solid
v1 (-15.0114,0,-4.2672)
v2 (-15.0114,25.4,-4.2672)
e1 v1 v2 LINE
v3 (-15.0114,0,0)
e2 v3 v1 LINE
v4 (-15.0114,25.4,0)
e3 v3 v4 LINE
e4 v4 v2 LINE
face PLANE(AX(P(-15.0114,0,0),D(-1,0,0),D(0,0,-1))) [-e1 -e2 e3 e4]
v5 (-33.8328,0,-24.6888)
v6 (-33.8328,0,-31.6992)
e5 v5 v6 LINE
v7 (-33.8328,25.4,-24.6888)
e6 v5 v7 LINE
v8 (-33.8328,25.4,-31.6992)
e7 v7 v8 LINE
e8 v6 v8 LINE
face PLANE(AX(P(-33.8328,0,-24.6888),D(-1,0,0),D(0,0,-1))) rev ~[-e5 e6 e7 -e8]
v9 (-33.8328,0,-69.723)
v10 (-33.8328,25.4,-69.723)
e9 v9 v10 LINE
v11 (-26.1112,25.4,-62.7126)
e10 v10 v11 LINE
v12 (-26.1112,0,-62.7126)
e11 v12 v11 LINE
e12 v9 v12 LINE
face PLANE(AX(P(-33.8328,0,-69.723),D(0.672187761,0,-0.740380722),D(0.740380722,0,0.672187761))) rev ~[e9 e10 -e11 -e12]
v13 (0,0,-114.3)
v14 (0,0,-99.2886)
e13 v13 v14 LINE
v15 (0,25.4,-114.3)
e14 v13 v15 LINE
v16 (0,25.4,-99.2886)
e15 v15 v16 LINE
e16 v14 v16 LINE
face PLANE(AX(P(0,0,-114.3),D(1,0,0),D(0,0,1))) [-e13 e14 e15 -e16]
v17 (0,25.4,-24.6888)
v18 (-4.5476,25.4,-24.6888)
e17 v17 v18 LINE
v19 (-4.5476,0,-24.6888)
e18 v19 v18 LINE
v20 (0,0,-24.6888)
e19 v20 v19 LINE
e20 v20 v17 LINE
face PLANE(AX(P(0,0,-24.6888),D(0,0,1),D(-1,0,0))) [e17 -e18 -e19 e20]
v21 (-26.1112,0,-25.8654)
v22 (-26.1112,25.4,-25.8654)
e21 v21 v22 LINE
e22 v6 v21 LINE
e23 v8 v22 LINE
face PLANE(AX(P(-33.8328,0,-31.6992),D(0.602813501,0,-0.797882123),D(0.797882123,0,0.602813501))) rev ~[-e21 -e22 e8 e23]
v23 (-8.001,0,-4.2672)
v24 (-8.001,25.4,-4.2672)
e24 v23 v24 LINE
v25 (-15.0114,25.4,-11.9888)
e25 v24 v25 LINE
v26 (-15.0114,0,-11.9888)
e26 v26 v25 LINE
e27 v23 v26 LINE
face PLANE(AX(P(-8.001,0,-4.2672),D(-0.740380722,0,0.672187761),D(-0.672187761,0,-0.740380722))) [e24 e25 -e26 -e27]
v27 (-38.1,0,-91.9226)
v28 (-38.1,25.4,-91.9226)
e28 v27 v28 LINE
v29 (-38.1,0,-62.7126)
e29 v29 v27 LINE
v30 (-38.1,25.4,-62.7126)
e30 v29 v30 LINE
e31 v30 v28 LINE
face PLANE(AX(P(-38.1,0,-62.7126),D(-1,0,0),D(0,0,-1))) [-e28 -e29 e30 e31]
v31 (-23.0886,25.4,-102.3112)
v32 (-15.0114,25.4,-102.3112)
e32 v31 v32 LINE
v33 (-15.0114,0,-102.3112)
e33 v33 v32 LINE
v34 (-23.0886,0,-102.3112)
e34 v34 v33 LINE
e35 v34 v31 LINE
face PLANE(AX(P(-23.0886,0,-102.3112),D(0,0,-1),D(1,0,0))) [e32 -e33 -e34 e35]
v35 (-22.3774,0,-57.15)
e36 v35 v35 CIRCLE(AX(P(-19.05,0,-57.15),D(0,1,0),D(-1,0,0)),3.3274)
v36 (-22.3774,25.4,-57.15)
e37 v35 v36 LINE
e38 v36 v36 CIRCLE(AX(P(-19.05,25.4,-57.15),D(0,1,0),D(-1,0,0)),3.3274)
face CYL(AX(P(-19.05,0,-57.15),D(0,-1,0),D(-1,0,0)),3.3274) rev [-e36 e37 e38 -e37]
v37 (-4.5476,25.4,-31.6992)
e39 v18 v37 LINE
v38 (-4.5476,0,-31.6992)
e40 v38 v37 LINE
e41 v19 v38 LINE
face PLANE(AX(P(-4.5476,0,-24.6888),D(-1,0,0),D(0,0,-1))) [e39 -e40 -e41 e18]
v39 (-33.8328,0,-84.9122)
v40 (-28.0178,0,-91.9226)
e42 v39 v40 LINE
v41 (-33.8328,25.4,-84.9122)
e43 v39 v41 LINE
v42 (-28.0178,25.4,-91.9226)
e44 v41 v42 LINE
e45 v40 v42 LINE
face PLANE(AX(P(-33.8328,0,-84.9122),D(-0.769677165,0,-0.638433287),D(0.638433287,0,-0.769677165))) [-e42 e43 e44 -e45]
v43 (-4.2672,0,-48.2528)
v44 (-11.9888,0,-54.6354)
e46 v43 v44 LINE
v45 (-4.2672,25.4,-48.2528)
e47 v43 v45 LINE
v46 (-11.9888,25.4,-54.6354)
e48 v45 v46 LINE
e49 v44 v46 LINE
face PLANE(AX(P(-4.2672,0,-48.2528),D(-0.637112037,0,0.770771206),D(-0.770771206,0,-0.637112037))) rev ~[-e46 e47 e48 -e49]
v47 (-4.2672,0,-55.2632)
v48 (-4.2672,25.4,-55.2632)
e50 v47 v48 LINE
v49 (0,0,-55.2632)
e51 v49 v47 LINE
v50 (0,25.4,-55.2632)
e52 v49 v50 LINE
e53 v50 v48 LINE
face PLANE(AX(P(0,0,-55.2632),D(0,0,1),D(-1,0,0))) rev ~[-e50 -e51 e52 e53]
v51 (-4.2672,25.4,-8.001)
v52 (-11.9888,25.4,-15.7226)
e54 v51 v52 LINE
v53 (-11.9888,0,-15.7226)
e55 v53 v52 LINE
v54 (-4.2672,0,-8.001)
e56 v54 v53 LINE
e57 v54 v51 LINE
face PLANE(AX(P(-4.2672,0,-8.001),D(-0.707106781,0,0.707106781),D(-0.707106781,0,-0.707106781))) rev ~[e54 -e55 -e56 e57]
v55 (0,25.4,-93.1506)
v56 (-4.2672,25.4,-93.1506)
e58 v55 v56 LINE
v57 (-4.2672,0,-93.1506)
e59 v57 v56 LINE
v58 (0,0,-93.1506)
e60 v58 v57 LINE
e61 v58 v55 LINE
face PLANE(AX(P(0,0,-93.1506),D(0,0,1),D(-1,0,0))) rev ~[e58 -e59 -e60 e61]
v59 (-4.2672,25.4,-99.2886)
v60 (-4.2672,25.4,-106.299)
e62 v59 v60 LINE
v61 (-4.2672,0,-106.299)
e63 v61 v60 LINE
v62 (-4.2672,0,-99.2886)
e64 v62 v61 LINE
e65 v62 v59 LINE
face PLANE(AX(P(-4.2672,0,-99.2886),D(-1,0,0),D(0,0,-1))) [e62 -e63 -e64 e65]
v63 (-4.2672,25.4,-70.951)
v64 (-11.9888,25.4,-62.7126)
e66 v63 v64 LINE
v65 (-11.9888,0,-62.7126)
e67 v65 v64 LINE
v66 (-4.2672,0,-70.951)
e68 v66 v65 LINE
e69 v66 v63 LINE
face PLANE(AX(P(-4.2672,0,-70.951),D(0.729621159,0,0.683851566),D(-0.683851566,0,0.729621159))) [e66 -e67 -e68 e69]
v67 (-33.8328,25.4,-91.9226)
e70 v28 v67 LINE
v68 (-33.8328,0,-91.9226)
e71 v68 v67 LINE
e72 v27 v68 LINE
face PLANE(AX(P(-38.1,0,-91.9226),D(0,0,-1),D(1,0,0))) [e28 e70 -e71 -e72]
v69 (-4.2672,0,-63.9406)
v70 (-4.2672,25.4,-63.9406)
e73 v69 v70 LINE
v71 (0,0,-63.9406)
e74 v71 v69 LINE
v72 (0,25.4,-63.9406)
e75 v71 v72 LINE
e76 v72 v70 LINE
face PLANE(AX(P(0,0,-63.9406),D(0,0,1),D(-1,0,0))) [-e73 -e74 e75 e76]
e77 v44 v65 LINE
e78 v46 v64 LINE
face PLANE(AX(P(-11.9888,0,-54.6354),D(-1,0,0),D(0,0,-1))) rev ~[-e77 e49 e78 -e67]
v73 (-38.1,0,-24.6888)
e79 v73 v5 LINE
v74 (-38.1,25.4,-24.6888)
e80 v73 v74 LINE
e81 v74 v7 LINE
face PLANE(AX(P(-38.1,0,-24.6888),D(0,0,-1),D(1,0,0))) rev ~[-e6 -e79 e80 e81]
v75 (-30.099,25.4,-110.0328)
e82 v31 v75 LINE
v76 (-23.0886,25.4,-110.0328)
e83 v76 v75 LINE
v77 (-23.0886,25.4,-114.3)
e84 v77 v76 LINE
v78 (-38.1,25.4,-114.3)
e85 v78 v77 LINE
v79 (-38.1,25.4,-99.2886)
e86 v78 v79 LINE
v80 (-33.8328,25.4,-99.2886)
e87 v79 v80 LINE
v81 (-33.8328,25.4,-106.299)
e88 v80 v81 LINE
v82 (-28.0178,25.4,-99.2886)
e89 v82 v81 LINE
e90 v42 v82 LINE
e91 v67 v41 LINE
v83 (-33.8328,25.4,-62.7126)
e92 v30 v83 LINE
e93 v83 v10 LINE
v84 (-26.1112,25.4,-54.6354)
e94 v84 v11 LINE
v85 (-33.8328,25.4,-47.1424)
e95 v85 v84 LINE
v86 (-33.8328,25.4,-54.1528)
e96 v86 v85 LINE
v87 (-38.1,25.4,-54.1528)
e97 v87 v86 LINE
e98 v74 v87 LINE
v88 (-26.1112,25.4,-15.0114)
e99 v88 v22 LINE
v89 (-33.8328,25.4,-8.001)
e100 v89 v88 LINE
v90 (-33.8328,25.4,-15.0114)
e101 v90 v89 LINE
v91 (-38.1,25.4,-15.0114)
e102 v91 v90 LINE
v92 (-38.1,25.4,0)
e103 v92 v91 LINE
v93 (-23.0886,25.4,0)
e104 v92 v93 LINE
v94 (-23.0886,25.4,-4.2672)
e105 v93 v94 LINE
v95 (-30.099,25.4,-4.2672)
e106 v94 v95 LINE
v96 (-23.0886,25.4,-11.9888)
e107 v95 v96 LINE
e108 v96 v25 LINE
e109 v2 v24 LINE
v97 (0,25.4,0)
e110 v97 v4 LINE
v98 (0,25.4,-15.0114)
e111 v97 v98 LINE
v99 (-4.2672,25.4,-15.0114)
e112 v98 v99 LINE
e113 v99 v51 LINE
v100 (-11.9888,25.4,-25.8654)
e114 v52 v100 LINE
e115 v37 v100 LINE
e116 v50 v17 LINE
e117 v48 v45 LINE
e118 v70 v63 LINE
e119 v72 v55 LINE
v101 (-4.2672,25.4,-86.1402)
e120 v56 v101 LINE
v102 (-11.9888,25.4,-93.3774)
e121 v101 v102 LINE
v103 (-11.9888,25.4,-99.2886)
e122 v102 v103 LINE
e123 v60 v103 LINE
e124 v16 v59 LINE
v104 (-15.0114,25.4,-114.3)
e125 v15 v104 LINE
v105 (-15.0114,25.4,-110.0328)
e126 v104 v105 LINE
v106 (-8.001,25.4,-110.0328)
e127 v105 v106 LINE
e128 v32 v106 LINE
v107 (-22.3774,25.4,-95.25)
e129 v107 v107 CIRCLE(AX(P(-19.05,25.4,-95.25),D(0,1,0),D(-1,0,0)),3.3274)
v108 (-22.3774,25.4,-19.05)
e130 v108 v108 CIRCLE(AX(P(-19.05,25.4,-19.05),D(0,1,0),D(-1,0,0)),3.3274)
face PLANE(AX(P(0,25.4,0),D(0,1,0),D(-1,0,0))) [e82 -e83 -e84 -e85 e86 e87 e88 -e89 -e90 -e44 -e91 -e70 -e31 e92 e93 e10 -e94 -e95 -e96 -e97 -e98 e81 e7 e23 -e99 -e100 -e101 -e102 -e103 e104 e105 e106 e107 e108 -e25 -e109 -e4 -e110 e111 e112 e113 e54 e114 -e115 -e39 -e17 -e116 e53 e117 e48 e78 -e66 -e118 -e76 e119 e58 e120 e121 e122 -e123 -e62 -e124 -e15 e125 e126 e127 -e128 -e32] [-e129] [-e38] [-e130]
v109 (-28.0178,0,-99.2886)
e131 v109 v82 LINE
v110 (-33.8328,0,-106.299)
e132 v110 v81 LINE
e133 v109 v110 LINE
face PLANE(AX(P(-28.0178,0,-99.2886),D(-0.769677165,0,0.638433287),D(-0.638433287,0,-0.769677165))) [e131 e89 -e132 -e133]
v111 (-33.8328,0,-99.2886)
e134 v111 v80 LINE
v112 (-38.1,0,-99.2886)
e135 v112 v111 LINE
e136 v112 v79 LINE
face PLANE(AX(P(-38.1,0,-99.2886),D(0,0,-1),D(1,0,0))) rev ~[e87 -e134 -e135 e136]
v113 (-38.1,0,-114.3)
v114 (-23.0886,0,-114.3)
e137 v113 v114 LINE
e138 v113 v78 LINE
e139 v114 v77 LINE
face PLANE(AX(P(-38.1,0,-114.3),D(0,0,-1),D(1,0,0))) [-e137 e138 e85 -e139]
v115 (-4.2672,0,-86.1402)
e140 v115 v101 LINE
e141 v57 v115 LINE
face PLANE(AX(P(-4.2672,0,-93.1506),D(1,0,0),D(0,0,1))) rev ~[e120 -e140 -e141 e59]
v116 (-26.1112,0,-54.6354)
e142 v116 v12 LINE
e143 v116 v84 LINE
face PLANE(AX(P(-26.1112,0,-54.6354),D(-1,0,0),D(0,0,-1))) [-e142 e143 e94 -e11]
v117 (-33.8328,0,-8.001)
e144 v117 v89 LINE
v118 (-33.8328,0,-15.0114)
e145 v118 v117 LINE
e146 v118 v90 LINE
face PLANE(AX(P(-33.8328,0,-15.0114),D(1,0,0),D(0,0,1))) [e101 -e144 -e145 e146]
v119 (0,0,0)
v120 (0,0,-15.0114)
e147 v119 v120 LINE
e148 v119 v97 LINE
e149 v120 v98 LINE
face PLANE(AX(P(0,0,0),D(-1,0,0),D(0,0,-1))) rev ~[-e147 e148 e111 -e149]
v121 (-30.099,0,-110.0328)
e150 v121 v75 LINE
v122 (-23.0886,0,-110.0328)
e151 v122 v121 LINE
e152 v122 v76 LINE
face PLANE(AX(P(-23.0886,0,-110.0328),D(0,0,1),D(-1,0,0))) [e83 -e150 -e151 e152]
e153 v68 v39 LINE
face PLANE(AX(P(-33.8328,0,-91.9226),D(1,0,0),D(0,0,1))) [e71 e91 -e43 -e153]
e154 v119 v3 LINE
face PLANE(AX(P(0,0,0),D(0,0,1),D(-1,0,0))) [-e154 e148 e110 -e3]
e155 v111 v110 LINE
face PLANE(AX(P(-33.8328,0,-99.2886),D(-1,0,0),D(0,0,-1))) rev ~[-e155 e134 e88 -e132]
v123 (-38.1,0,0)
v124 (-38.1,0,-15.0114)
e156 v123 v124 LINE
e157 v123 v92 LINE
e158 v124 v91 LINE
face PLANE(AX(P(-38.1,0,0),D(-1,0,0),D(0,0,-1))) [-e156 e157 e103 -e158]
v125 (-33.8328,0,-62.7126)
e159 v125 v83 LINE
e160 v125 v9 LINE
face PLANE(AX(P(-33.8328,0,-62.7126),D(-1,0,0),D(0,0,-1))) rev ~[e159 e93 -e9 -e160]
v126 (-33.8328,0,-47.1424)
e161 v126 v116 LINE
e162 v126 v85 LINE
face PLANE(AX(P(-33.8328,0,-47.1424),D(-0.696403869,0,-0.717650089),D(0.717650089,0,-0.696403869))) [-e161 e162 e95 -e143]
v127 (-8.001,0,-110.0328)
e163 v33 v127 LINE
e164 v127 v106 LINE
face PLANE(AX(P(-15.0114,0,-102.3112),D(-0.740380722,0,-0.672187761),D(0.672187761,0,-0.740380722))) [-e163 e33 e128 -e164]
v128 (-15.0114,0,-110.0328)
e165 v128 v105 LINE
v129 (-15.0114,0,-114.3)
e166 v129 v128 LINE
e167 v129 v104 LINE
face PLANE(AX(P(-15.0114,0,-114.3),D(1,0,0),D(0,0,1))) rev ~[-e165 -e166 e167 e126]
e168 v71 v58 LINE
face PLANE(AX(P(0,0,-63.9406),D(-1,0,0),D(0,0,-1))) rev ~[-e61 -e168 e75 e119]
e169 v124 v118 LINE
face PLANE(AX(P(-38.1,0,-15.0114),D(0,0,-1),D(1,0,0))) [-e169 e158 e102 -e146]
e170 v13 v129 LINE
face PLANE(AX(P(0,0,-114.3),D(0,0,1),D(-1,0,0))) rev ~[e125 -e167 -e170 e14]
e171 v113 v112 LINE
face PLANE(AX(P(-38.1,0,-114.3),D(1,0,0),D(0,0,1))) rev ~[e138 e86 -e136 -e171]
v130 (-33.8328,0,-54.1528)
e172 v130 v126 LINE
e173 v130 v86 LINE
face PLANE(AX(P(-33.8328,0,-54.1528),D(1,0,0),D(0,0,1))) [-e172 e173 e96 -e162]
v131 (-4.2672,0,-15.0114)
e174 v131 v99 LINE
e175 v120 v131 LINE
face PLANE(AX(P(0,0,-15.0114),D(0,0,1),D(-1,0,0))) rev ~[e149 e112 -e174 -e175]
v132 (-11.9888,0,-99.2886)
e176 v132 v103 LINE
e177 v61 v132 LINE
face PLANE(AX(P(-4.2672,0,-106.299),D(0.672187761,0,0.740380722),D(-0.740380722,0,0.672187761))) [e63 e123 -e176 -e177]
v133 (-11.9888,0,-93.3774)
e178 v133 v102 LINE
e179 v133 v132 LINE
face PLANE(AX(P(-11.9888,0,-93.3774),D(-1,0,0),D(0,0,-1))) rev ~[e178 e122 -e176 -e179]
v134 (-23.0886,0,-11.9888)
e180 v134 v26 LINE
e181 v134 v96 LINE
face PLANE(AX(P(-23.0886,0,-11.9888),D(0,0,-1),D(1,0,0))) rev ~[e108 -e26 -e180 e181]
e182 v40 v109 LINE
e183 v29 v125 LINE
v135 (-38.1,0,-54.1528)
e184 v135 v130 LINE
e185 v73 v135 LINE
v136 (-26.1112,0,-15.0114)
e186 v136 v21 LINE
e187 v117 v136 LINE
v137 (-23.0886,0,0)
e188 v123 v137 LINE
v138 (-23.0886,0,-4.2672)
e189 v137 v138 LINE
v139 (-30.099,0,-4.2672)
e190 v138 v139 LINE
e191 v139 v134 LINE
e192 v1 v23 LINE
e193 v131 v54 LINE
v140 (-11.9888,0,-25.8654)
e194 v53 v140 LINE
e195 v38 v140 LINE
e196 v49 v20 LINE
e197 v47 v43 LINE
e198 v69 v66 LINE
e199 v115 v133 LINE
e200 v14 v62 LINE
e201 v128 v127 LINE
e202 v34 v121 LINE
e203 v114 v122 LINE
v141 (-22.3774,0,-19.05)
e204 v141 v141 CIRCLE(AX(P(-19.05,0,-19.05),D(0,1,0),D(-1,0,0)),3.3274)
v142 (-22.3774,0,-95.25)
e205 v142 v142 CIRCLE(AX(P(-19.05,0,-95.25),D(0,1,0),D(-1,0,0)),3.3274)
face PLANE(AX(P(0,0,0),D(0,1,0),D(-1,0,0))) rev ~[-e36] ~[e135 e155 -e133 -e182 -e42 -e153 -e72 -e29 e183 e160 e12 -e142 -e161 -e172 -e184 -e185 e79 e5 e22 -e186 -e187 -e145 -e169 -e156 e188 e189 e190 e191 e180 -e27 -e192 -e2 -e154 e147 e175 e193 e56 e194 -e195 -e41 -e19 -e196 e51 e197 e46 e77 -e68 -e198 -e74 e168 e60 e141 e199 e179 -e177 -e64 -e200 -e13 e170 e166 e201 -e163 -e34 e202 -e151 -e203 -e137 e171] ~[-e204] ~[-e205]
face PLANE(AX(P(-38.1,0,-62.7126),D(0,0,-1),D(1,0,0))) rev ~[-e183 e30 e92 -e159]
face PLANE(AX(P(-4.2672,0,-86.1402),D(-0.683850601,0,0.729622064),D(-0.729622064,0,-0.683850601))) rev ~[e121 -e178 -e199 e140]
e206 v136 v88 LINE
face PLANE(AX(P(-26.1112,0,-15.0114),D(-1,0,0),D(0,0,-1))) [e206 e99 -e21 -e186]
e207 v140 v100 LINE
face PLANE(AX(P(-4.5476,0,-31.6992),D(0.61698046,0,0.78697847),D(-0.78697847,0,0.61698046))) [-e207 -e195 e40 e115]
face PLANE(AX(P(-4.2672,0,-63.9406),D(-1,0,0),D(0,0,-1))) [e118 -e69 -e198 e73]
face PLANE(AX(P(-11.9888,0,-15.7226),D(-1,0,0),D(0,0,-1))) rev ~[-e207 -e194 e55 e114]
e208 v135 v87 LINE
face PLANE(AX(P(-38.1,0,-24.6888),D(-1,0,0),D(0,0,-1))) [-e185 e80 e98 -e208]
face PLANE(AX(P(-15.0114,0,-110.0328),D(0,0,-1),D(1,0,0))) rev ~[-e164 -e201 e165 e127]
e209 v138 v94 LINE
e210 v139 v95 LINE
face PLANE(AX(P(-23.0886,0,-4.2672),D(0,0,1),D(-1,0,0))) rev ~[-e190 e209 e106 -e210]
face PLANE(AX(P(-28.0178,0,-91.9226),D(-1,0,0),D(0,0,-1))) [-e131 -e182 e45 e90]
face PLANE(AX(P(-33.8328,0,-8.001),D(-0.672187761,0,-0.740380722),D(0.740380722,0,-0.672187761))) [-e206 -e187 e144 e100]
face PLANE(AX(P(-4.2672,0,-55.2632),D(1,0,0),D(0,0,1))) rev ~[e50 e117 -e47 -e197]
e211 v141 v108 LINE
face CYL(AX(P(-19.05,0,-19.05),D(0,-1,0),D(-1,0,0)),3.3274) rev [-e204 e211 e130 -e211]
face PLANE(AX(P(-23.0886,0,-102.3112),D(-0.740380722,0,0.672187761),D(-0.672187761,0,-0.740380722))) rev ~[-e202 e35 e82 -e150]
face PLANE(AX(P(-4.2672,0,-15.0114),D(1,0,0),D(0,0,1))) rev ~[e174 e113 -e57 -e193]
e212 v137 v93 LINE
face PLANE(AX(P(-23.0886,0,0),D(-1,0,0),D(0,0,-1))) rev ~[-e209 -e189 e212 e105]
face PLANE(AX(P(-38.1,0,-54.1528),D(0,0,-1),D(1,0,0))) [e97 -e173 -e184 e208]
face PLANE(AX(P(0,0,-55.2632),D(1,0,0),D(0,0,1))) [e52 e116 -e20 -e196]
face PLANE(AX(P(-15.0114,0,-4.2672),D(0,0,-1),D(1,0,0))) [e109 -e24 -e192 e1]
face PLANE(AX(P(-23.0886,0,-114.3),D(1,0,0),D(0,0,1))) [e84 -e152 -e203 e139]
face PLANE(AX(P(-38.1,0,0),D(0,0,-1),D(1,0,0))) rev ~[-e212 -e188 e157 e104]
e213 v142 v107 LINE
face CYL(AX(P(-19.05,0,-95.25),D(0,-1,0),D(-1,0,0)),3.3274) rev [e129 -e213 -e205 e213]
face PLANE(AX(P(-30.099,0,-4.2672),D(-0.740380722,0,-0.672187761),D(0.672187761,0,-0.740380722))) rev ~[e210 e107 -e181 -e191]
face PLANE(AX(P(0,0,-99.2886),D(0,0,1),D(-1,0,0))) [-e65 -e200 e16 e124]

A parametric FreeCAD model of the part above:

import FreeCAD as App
import Part
import Sketcher
from FreeCAD import Vector
Q = App.Units.Quantity

doc = App.newDocument("Part")
body = doc.addObject("PartDesign::Body", "Body")

# Sketch on XZ plane
sketch1 = body.newObject("Sketcher::SketchObject", "Sketch")
sketch1.AttachmentSupport = (doc.getObject("XZ_Plane"), [""])
sketch1.MapMode = "FlatFace"
sketch1.addGeometry(Part.LineSegment(Vector(-15.0114, 0, 0), Vector(0, 0, 0)), False)
sketch1.addGeometry(Part.LineSegment(Vector(0, 0, 0), Vector(0, -15.0114, 0)), False)
sketch1.addGeometry(Part.LineSegment(Vector(0, -15.0114, 0), Vector(-4.2672, -15.0114, 0)), False)
sketch1.addGeometry(Part.LineSegment(Vector(-4.2672, -15.0114, 0), Vector(-4.2672, -8.001, 0)), False)
sketch1.addGeometry(Part.LineSegment(Vector(-4.2672, -8.001, 0), Vector(-11.9888, -15.7226, 0)), False)
sketch1.addGeometry(Part.LineSegment(Vector(-11.9888, -15.7226, 0), Vector(-11.9888, -25.8654, 0)), False)
sketch1.addGeometry(Part.LineSegment(Vector(-11.9888, -25.8654, 0), Vector(-4.5476, -31.6992, 0)), False)
sketch1.addGeometry(Part.LineSegment(Vector(-4.5476, -31.6992, 0), Vector(-4.5476, -24.6888, 0)), False)
sketch1.addGeometry(Part.LineSegment(Vector(-4.5476, -24.6888, 0), Vector(0, -24.6888, 0)), False)
sketch1.addGeometry(Part.LineSegment(Vector(0, -24.6888, 0), Vector(0, -55.2632, 0)), False)
sketch1.addGeometry(Part.LineSegment(Vector(0, -55.2632, 0), Vector(-4.2672, -55.2632, 0)), False)
sketch1.addGeometry(Part.LineSegment(Vector(-4.2672, -55.2632, 0), Vector(-4.2672, -48.2528, 0)), False)
sketch1.addGeometry(Part.LineSegment(Vector(-4.2672, -48.2528, 0), Vector(-11.9888, -54.6354, 0)), False)
sketch1.addGeometry(Part.LineSegment(Vector(-11.9888, -54.6354, 0), Vector(-11.9888, -62.7126, 0)), False)
sketch1.addGeometry(Part.LineSegment(Vector(-11.9888, -62.7126, 0), Vector(-4.2672, -70.951, 0)), False)
sketch1.addGeometry(Part.LineSegment(Vector(-4.2672, -70.951, 0), Vector(-4.2672, -63.9406, 0)), False)
sketch1.addGeometry(Part.LineSegment(Vector(-4.2672, -63.9406, 0), Vector(0, -63.9406, 0)), False)
sketch1.addGeometry(Part.LineSegment(Vector(0, -63.9406, 0), Vector(0, -93.1506, 0)), False)
sketch1.addGeometry(Part.LineSegment(Vector(0, -93.1506, 0), Vector(-4.2672, -93.1506, 0)), False)
sketch1.addGeometry(Part.LineSegment(Vector(-4.2672, -93.1506, 0), Vector(-4.2672, -86.1402, 0)), False)
sketch1.addGeometry(Part.LineSegment(Vector(-4.2672, -86.1402, 0), Vector(-11.9888, -93.3774, 0)), False)
sketch1.addGeometry(Part.LineSegment(Vector(-11.9888, -93.3774, 0), Vector(-11.9888, -99.2886, 0)), False)
sketch1.addGeometry(Part.LineSegment(Vector(-11.9888, -99.2886, 0), Vector(-4.2672, -106.299, 0)), False)
sketch1.addGeometry(Part.LineSegment(Vector(-4.2672, -106.299, 0), Vector(-4.2672, -99.2886, 0)), False)
sketch1.addGeometry(Part.LineSegment(Vector(-4.2672, -99.2886, 0), Vector(0, -99.2886, 0)), False)
sketch1.addGeometry(Part.LineSegment(Vector(0, -99.2886, 0), Vector(0, -114.3, 0)), False)
sketch1.addGeometry(Part.LineSegment(Vector(0, -114.3, 0), Vector(-15.0114, -114.3, 0)), False)
sketch1.addGeometry(Part.LineSegment(Vector(-15.0114, -114.3, 0), Vector(-15.0114, -110.0328, 0)), False)
sketch1.addGeometry(Part.LineSegment(Vector(-15.0114, -110.0328, 0), Vector(-8.001, -110.0328, 0)), False)
sketch1.addGeometry(Part.LineSegment(Vector(-8.001, -110.0328, 0), Vector(-15.0114, -102.3112, 0)), False)
sketch1.addGeometry(Part.LineSegment(Vector(-15.0114, -102.3112, 0), Vector(-23.0886, -102.3112, 0)), False)
sketch1.addGeometry(Part.LineSegment(Vector(-23.0886, -102.3112, 0), Vector(-30.099, -110.0328, 0)), False)
sketch1.addGeometry(Part.LineSegment(Vector(-30.099, -110.0328, 0), Vector(-23.0886, -110.0328, 0)), False)
sketch1.addGeometry(Part.LineSegment(Vector(-23.0886, -110.0328, 0), Vector(-23.0886, -114.3, 0)), False)
sketch1.addGeometry(Part.LineSegment(Vector(-23.0886, -114.3, 0), Vector(-38.1, -114.3, 0)), False)
sketch1.addGeometry(Part.LineSegment(Vector(-38.1, -114.3, 0), Vector(-38.1, -99.2886, 0)), False)
sketch1.addGeometry(Part.LineSegment(Vector(-38.1, -99.2886, 0), Vector(-33.8328, -99.2886, 0)), False)
sketch1.addGeometry(Part.LineSegment(Vector(-33.8328, -99.2886, 0), Vector(-33.8328, -106.299, 0)), False)
sketch1.addGeometry(Part.LineSegment(Vector(-33.8328, -106.299, 0), Vector(-28.0178, -99.2886, 0)), False)
sketch1.addGeometry(Part.LineSegment(Vector(-28.0178, -99.2886, 0), Vector(-28.0178, -91.9226, 0)), False)
sketch1.addGeometry(Part.LineSegment(Vector(-28.0178, -91.9226, 0), Vector(-33.8328, -84.9122, 0)), False)
sketch1.addGeometry(Part.LineSegment(Vector(-33.8328, -84.9122, 0), Vector(-33.8328, -91.9226, 0)), False)
sketch1.addGeometry(Part.LineSegment(Vector(-33.8328, -91.9226, 0), Vector(-38.1, -91.9226, 0)), False)
sketch1.addGeometry(Part.LineSegment(Vector(-38.1, -91.9226, 0), Vector(-38.1, -62.7126, 0)), False)
sketch1.addGeometry(Part.LineSegment(Vector(-38.1, -62.7126, 0), Vector(-33.8328, -62.7126, 0)), False)
sketch1.addGeometry(Part.LineSegment(Vector(-33.8328, -62.7126, 0), Vector(-33.8328, -69.723, 0)), False)
sketch1.addGeometry(Part.LineSegment(Vector(-33.8328, -69.723, 0), Vector(-26.1112, -62.7126, 0)), False)
sketch1.addGeometry(Part.LineSegment(Vector(-26.1112, -62.7126, 0), Vector(-26.1112, -54.6354, 0)), False)
sketch1.addGeometry(Part.LineSegment(Vector(-26.1112, -54.6354, 0), Vector(-33.8328, -47.1424, 0)), False)
sketch1.addGeometry(Part.LineSegment(Vector(-33.8328, -47.1424, 0), Vector(-33.8328, -54.1528, 0)), False)
sketch1.addGeometry(Part.LineSegment(Vector(-33.8328, -54.1528, 0), Vector(-38.1, -54.1528, 0)), False)
sketch1.addGeometry(Part.LineSegment(Vector(-38.1, -54.1528, 0), Vector(-38.1, -24.6888, 0)), False)
sketch1.addGeometry(Part.LineSegment(Vector(-38.1, -24.6888, 0), Vector(-33.8328, -24.6888, 0)), False)
sketch1.addGeometry(Part.LineSegment(Vector(-33.8328, -24.6888, 0), Vector(-33.8328, -31.6992, 0)), False)
sketch1.addGeometry(Part.LineSegment(Vector(-33.8328, -31.6992, 0), Vector(-26.1112, -25.8654, 0)), False)
sketch1.addGeometry(Part.LineSegment(Vector(-26.1112, -25.8654, 0), Vector(-26.1112, -15.0114, 0)), False)
sketch1.addGeometry(Part.LineSegment(Vector(-26.1112, -15.0114, 0), Vector(-33.8328, -8.001, 0)), False)
sketch1.addGeometry(Part.LineSegment(Vector(-33.8328, -8.001, 0), Vector(-33.8328, -15.0114, 0)), False)
sketch1.addGeometry(Part.LineSegment(Vector(-33.8328, -15.0114, 0), Vector(-38.1, -15.0114, 0)), False)
sketch1.addGeometry(Part.LineSegment(Vector(-38.1, -15.0114, 0), Vector(-38.1, 0, 0)), False)
sketch1.addGeometry(Part.LineSegment(Vector(-38.1, 0, 0), Vector(-23.0886, 0, 0)), False)
sketch1.addGeometry(Part.LineSegment(Vector(-23.0886, 0, 0), Vector(-23.0886, -4.2672, 0)), False)
sketch1.addGeometry(Part.LineSegment(Vector(-23.0886, -4.2672, 0), Vector(-30.099, -4.2672, 0)), False)
sketch1.addGeometry(Part.LineSegment(Vector(-30.099, -4.2672, 0), Vector(-23.0886, -11.9888, 0)), False)
sketch1.addGeometry(Part.LineSegment(Vector(-23.0886, -11.9888, 0), Vector(-15.0114, -11.9888, 0)), False)
sketch1.addGeometry(Part.LineSegment(Vector(-15.0114, -11.9888, 0), Vector(-8.001, -4.2672, 0)), False)
sketch1.addGeometry(Part.LineSegment(Vector(-8.001, -4.2672, 0), Vector(-15.0114, -4.2672, 0)), False)
sketch1.addGeometry(Part.LineSegment(Vector(-15.0114, -4.2672, 0), Vector(-15.0114, 0, 0)), False)
sketch1.addGeometry(Part.Circle(Vector(-19.05, -95.25, 0), Vector(0, 0, 1), 3.3274), False)
sketch1.addGeometry(Part.Circle(Vector(-19.05, -57.15, 0), Vector(0, 0, 1), 3.3274), False)
sketch1.addGeometry(Part.Circle(Vector(-19.05, -19.05, 0), Vector(0, 0, 1), 3.3274), False)
sketch1.addConstraint(Sketcher.Constraint("Coincident", 0, 2, 1, 1))
sketch1.addConstraint(Sketcher.Constraint("Coincident", 1, 2, 2, 1))
sketch1.addConstraint(Sketcher.Constraint("Coincident", 2, 2, 3, 1))
sketch1.addConstraint(Sketcher.Constraint("Coincident", 3, 2, 4, 1))
sketch1.addConstraint(Sketcher.Constraint("Coincident", 4, 2, 5, 1))
sketch1.addConstraint(Sketcher.Constraint("Coincident", 5, 2, 6, 1))
sketch1.addConstraint(Sketcher.Constraint("Coincident", 6, 2, 7, 1))
sketch1.addConstraint(Sketcher.Constraint("Coincident", 7, 2, 8, 1))
sketch1.addConstraint(Sketcher.Constraint("Coincident", 8, 2, 9, 1))
sketch1.addConstraint(Sketcher.Constraint("Coincident", 9, 2, 10, 1))
sketch1.addConstraint(Sketcher.Constraint("Coincident", 10, 2, 11, 1))
sketch1.addConstraint(Sketcher.Constraint("Coincident", 11, 2, 12, 1))
sketch1.addConstraint(Sketcher.Constraint("Coincident", 12, 2, 13, 1))
sketch1.addConstraint(Sketcher.Constraint("Coincident", 13, 2, 14, 1))
sketch1.addConstraint(Sketcher.Constraint("Coincident", 14, 2, 15, 1))
sketch1.addConstraint(Sketcher.Constraint("Coincident", 15, 2, 16, 1))
sketch1.addConstraint(Sketcher.Constraint("Coincident", 16, 2, 17, 1))
sketch1.addConstraint(Sketcher.Constraint("Coincident", 17, 2, 18, 1))
sketch1.addConstraint(Sketcher.Constraint("Coincident", 18, 2, 19, 1))
sketch1.addConstraint(Sketcher.Constraint("Coincident", 19, 2, 20, 1))
sketch1.addConstraint(Sketcher.Constraint("Coincident", 20, 2, 21, 1))
sketch1.addConstraint(Sketcher.Constraint("Coincident", 21, 2, 22, 1))
sketch1.addConstraint(Sketcher.Constraint("Coincident", 22, 2, 23, 1))
sketch1.addConstraint(Sketcher.Constraint("Coincident", 23, 2, 24, 1))
sketch1.addConstraint(Sketcher.Constraint("Coincident", 24, 2, 25, 1))
sketch1.addConstraint(Sketcher.Constraint("Coincident", 25, 2, 26, 1))
sketch1.addConstraint(Sketcher.Constraint("Coincident", 26, 2, 27, 1))
sketch1.addConstraint(Sketcher.Constraint("Coincident", 27, 2, 28, 1))
sketch1.addConstraint(Sketcher.Constraint("Coincident", 28, 2, 29, 1))
sketch1.addConstraint(Sketcher.Constraint("Coincident", 29, 2, 30, 1))
sketch1.addConstraint(Sketcher.Constraint("Coincident", 30, 2, 31, 1))
sketch1.addConstraint(Sketcher.Constraint("Coincident", 31, 2, 32, 1))
sketch1.addConstraint(Sketcher.Constraint("Coincident", 32, 2, 33, 1))
sketch1.addConstraint(Sketcher.Constraint("Coincident", 33, 2, 34, 1))
sketch1.addConstraint(Sketcher.Constraint("Coincident", 34, 2, 35, 1))
sketch1.addConstraint(Sketcher.Constraint("Coincident", 35, 2, 36, 1))
sketch1.addConstraint(Sketcher.Constraint("Coincident", 36, 2, 37, 1))
sketch1.addConstraint(Sketcher.Constraint("Coincident", 37, 2, 38, 1))
sketch1.addConstraint(Sketcher.Constraint("Coincident", 38, 2, 39, 1))
sketch1.addConstraint(Sketcher.Constraint("Coincident", 39, 2, 40, 1))
sketch1.addConstraint(Sketcher.Constraint("Coincident", 40, 2, 41, 1))
sketch1.addConstraint(Sketcher.Constraint("Coincident", 41, 2, 42, 1))
sketch1.addConstraint(Sketcher.Constraint("Coincident", 42, 2, 43, 1))
sketch1.addConstraint(Sketcher.Constraint("Coincident", 43, 2, 44, 1))
sketch1.addConstraint(Sketcher.Constraint("Coincident", 44, 2, 45, 1))
sketch1.addConstraint(Sketcher.Constraint("Coincident", 45, 2, 46, 1))
sketch1.addConstraint(Sketcher.Constraint("Coincident", 46, 2, 47, 1))
sketch1.addConstraint(Sketcher.Constraint("Coincident", 47, 2, 48, 1))
sketch1.addConstraint(Sketcher.Constraint("Coincident", 48, 2, 49, 1))
sketch1.addConstraint(Sketcher.Constraint("Coincident", 49, 2, 50, 1))
sketch1.addConstraint(Sketcher.Constraint("Coincident", 50, 2, 51, 1))
sketch1.addConstraint(Sketcher.Constraint("Coincident", 51, 2, 52, 1))
sketch1.addConstraint(Sketcher.Constraint("Coincident", 52, 2, 53, 1))
sketch1.addConstraint(Sketcher.Constraint("Coincident", 53, 2, 54, 1))
sketch1.addConstraint(Sketcher.Constraint("Coincident", 54, 2, 55, 1))
sketch1.addConstraint(Sketcher.Constraint("Coincident", 55, 2, 56, 1))
sketch1.addConstraint(Sketcher.Constraint("Coincident", 56, 2, 57, 1))
sketch1.addConstraint(Sketcher.Constraint("Coincident", 57, 2, 58, 1))
sketch1.addConstraint(Sketcher.Constraint("Coincident", 58, 2, 59, 1))
sketch1.addConstraint(Sketcher.Constraint("Coincident", 59, 2, 60, 1))
sketch1.addConstraint(Sketcher.Constraint("Coincident", 60, 2, 61, 1))
sketch1.addConstraint(Sketcher.Constraint("Coincident", 61, 2, 62, 1))
sketch1.addConstraint(Sketcher.Constraint("Coincident", 62, 2, 63, 1))
sketch1.addConstraint(Sketcher.Constraint("Coincident", 63, 2, 64, 1))
sketch1.addConstraint(Sketcher.Constraint("Coincident", 64, 2, 65, 1))
sketch1.addConstraint(Sketcher.Constraint("Coincident", 65, 2, 66, 1))
sketch1.addConstraint(Sketcher.Constraint("Coincident", 66, 2, 67, 1))
sketch1.addConstraint(Sketcher.Constraint("Coincident", 67, 2, 0, 1))
sketch1.addConstraint(Sketcher.Constraint("Horizontal", 0))
sketch1.addConstraint(Sketcher.Constraint("Vertical", 1))
sketch1.addConstraint(Sketcher.Constraint("Horizontal", 2))
sketch1.addConstraint(Sketcher.Constraint("Vertical", 3))
sketch1.addConstraint(Sketcher.Constraint("Vertical", 5))
sketch1.addConstraint(Sketcher.Constraint("Vertical", 7))
sketch1.addConstraint(Sketcher.Constraint("Horizontal", 8))
sketch1.addConstraint(Sketcher.Constraint("Vertical", 9))
sketch1.addConstraint(Sketcher.Constraint("Horizontal", 10))
sketch1.addConstraint(Sketcher.Constraint("Vertical", 11))
sketch1.addConstraint(Sketcher.Constraint("Vertical", 13))
sketch1.addConstraint(Sketcher.Constraint("Vertical", 15))
sketch1.addConstraint(Sketcher.Constraint("Horizontal", 16))
sketch1.addConstraint(Sketcher.Constraint("Vertical", 17))
sketch1.addConstraint(Sketcher.Constraint("Horizontal", 18))
sketch1.addConstraint(Sketcher.Constraint("Vertical", 19))
sketch1.addConstraint(Sketcher.Constraint("Vertical", 21))
sketch1.addConstraint(Sketcher.Constraint("Vertical", 23))
sketch1.addConstraint(Sketcher.Constraint("Horizontal", 24))
sketch1.addConstraint(Sketcher.Constraint("Vertical", 25))
sketch1.addConstraint(Sketcher.Constraint("Horizontal", 26))
sketch1.addConstraint(Sketcher.Constraint("Vertical", 27))
sketch1.addConstraint(Sketcher.Constraint("Horizontal", 28))
sketch1.addConstraint(Sketcher.Constraint("Horizontal", 30))
sketch1.addConstraint(Sketcher.Constraint("Horizontal", 32))
sketch1.addConstraint(Sketcher.Constraint("Vertical", 33))
sketch1.addConstraint(Sketcher.Constraint("Horizontal", 34))
sketch1.addConstraint(Sketcher.Constraint("Vertical", 35))
sketch1.addConstraint(Sketcher.Constraint("Horizontal", 36))
sketch1.addConstraint(Sketcher.Constraint("Vertical", 37))
sketch1.addConstraint(Sketcher.Constraint("Vertical", 39))
sketch1.addConstraint(Sketcher.Constraint("Vertical", 41))
sketch1.addConstraint(Sketcher.Constraint("Horizontal", 42))
sketch1.addConstraint(Sketcher.Constraint("Vertical", 43))
sketch1.addConstraint(Sketcher.Constraint("Horizontal", 44))
sketch1.addConstraint(Sketcher.Constraint("Vertical", 45))
sketch1.addConstraint(Sketcher.Constraint("Vertical", 47))
sketch1.addConstraint(Sketcher.Constraint("Vertical", 49))
sketch1.addConstraint(Sketcher.Constraint("Horizontal", 50))
sketch1.addConstraint(Sketcher.Constraint("Vertical", 51))
sketch1.addConstraint(Sketcher.Constraint("Horizontal", 52))
sketch1.addConstraint(Sketcher.Constraint("Vertical", 53))
sketch1.addConstraint(Sketcher.Constraint("Vertical", 55))
sketch1.addConstraint(Sketcher.Constraint("Vertical", 57))
sketch1.addConstraint(Sketcher.Constraint("Horizontal", 58))
sketch1.addConstraint(Sketcher.Constraint("Vertical", 59))
sketch1.addConstraint(Sketcher.Constraint("Horizontal", 60))
sketch1.addConstraint(Sketcher.Constraint("Vertical", 61))
sketch1.addConstraint(Sketcher.Constraint("Horizontal", 62))
sketch1.addConstraint(Sketcher.Constraint("Horizontal", 64))
sketch1.addConstraint(Sketcher.Constraint("Horizontal", 66))
sketch1.addConstraint(Sketcher.Constraint("Vertical", 67))
sketch1.addConstraint(Sketcher.Constraint("Coincident", 0, 2, -1, 1))
sketch1.addConstraint(Sketcher.Constraint("Equal", 68, 69))
sketch1.addConstraint(Sketcher.Constraint("Equal", 69, 70))
sketch1.addConstraint(Sketcher.Constraint("PointOnObject", 8, 2, -2))
sketch1.addConstraint(Sketcher.Constraint("PointOnObject", 16, 2, -2))
sketch1.addConstraint(Sketcher.Constraint("PointOnObject", 24, 2, -2))
sketch1.addConstraint(Sketcher.Constraint("PointOnObject", 59, 2, -1))
sketch1.addConstraint(Sketcher.Constraint("Perpendicular", 14, 20))
sketch1.addConstraint(Sketcher.Constraint("Perpendicular", 22, 31))
sketch1.addConstraint(Sketcher.Constraint("Perpendicular", 29, 46))
sketch1.addConstraint(Sketcher.Constraint("Perpendicular", 31, 56))
sketch1.addConstraint(Sketcher.Constraint("Perpendicular", 46, 63))
sketch1.addConstraint(Sketcher.Constraint("Perpendicular", 56, 65))
sketch1.addConstraint(Sketcher.Constraint("Horizontal", 21, 2, 23, 2))
sketch1.addConstraint(Sketcher.Constraint("Horizontal", 28, 2, 31, 2))
sketch1.addConstraint(Sketcher.Constraint("Horizontal", 26, 2, 33, 2))
sketch1.addConstraint(Sketcher.Constraint("Horizontal", 24, 2, 35, 2))
sketch1.addConstraint(Sketcher.Constraint("Horizontal", 22, 2, 37, 2))
sketch1.addConstraint(Sketcher.Constraint("Horizontal", 36, 2, 38, 2))
sketch1.addConstraint(Sketcher.Constraint("Horizontal", 39, 2, 41, 2))
sketch1.addConstraint(Sketcher.Constraint("Horizontal", 13, 2, 43, 2))
sketch1.addConstraint(Sketcher.Constraint("Horizontal", 44, 2, 46, 2))
sketch1.addConstraint(Sketcher.Constraint("Horizontal", 12, 2, 47, 2))
sketch1.addConstraint(Sketcher.Constraint("Horizontal", 8, 2, 51, 2))
sketch1.addConstraint(Sketcher.Constraint("Horizontal", 6, 2, 53, 2))
sketch1.addConstraint(Sketcher.Constraint("Horizontal", 5, 2, 54, 2))
sketch1.addConstraint(Sketcher.Constraint("Horizontal", 2, 2, 55, 2))
sketch1.addConstraint(Sketcher.Constraint("Horizontal", 3, 2, 56, 2))
sketch1.addConstraint(Sketcher.Constraint("Horizontal", 55, 2, 57, 2))
sketch1.addConstraint(Sketcher.Constraint("Horizontal", 62, 2, 65, 2))
sketch1.addConstraint(Sketcher.Constraint("Vertical", 68, 3, 69, 3))
sketch1.addConstraint(Sketcher.Constraint("Vertical", 69, 3, 70, 3))
sketch1.addConstraint(Sketcher.Constraint("Vertical", 3, 2, 10, 2))
sketch1.addConstraint(Sketcher.Constraint("Vertical", 5, 2, 12, 2))
sketch1.addConstraint(Sketcher.Constraint("Vertical", 11, 2, 14, 2))
sketch1.addConstraint(Sketcher.Constraint("Vertical", 15, 2, 18, 2))
sketch1.addConstraint(Sketcher.Constraint("Vertical", 13, 2, 20, 2))
sketch1.addConstraint(Sketcher.Constraint("Vertical", 19, 2, 22, 2))
sketch1.addConstraint(Sketcher.Constraint("Vertical", 27, 2, 29, 2))
sketch1.addConstraint(Sketcher.Constraint("Vertical", 30, 2, 32, 2))
sketch1.addConstraint(Sketcher.Constraint("Vertical", 37, 2, 40, 2))
sketch1.addConstraint(Sketcher.Constraint("Vertical", 35, 2, 42, 2))
sketch1.addConstraint(Sketcher.Constraint("Vertical", 41, 2, 44, 2))
sketch1.addConstraint(Sketcher.Constraint("Vertical", 45, 2, 48, 2))
sketch1.addConstraint(Sketcher.Constraint("Vertical", 43, 2, 50, 2))
sketch1.addConstraint(Sketcher.Constraint("Vertical", 49, 2, 52, 2))
sketch1.addConstraint(Sketcher.Constraint("Vertical", 47, 2, 54, 2))
sketch1.addConstraint(Sketcher.Constraint("Vertical", 53, 2, 56, 2))
sketch1.addConstraint(Sketcher.Constraint("Vertical", 51, 2, 58, 2))
sketch1.addConstraint(Sketcher.Constraint("Vertical", 33, 2, 60, 2))
sketch1.addConstraint(Sketcher.Constraint("Vertical", 31, 2, 62, 2))
sketch1.addConstraint(Sketcher.Constraint("Vertical", 61, 2, 63, 2))
sketch1.addConstraint(Sketcher.Constraint("Vertical", 29, 2, 64, 2))
sketch1.addConstraint(Sketcher.Constraint("Vertical", 28, 2, 65, 2))
sketch1.addConstraint(Sketcher.Constraint("Vertical", 64, 2, 66, 2))
sketch1.addConstraint(Sketcher.Constraint("Equal", 26, 34))
sketch1.addConstraint(Sketcher.Constraint("Equal", 24, 36))
sketch1.addConstraint(Sketcher.Constraint("Equal", 60, 1))
sketch1.addConstraint(Sketcher.Constraint("Equal", 66, 3))
sketch1.addConstraint(Sketcher.Constraint("Equal", 3, 7))
sketch1.addConstraint(Sketcher.Constraint("Equal", 7, 11))
sketch1.addConstraint(Sketcher.Constraint("Equal", 64, 13))
sketch1.addConstraint(Sketcher.Constraint("Equal", 11, 15))
sketch1.addConstraint(Sketcher.Constraint("Equal", 15, 19))
sketch1.addConstraint(Sketcher.Constraint("Equal", 19, 23))
sketch1.addConstraint(Sketcher.Constraint("Equal", 1, 25))
sketch1.addConstraint(Sketcher.Constraint("Equal", 58, 27))
sketch1.addConstraint(Sketcher.Constraint("Equal", 37, 41))
sketch1.addConstraint(Sketcher.Constraint("Equal", 17, 43))
sketch1.addConstraint(Sketcher.Constraint("Equal", 45, 49))
sketch1.addConstraint(Sketcher.Constraint("Equal", 33, 61))
sketch1.addConstraint(Sketcher.Constraint("Diameter", 68, Q("0.262 in")))
sketch1.addConstraint(Sketcher.Constraint("DistanceY", 17, 2, 17, 1, Q("1.15 in")))
sketch1.addConstraint(Sketcher.Constraint("DistanceY", 51, 1, 51, 2, Q("1.16 in")))
sketch1.addConstraint(Sketcher.Constraint("DistanceY", 25, 2, -1, 1, Q("4.5 in")))
sketch1.addConstraint(Sketcher.Constraint("DistanceX", 34, 2, -1, 1, Q("1.5 in")))
sketch1.addConstraint(Sketcher.Constraint("DistanceX", 0, 1, 0, 2, Q("0.591 in")))
sketch1.addConstraint(Sketcher.Constraint("DistanceX", 2, 2, 2, 1, Q("0.168 in")))
sketch1.addConstraint(Sketcher.Constraint("DistanceX", 28, 1, 28, 2, Q("0.276 in")))
sketch1.addConstraint(Sketcher.Constraint("Distance", 54, Q("0.381 in")))
sketch1.addConstraint(Sketcher.Constraint("DistanceX", 4, 2, -1, 1, Q("0.472 in")))
sketch1.addConstraint(Sketcher.Constraint("Angle", 4, Q("-135 deg")))
sketch1.addConstraint(Sketcher.Constraint("DistanceY", 39, 1, 39, 2, Q("0.29 in")))
sketch1.addConstraint(Sketcher.Constraint("DistanceX", 68, 3, -1, 1, Q("0.75 in")))
sketch1.addConstraint(Sketcher.Constraint("DistanceY", 68, 3, -1, 1, Q("3.75 in")))
sketch1.addConstraint(Sketcher.Constraint("DistanceY", 69, 3, -1, 1, Q("2.25 in")))
sketch1.addConstraint(Sketcher.Constraint("DistanceY", 70, 3, -1, 1, Q("0.75 in")))
sketch1.addConstraint(Sketcher.Constraint("Angle", 48, Q("135.8608 deg")))
sketch1.addConstraint(Sketcher.Constraint("Distance", 12, Q("0.3944 in")))
sketch1.addConstraint(Sketcher.Constraint("Distance", 38, Q("0.3586 in")))
sketch1.addConstraint(Sketcher.Constraint("DistanceX", 8, 1, 8, 2, 4.5476))
sketch1.addConstraint(Sketcher.Constraint("DistanceY", 21, 2, 21, 1, 5.9112))
pad1 = body.newObject("PartDesign::Pad", "Pad")
pad1.Profile = sketch1
pad1.Length = Q("1 in")
pad1.Reversed = True

doc.recompute()
